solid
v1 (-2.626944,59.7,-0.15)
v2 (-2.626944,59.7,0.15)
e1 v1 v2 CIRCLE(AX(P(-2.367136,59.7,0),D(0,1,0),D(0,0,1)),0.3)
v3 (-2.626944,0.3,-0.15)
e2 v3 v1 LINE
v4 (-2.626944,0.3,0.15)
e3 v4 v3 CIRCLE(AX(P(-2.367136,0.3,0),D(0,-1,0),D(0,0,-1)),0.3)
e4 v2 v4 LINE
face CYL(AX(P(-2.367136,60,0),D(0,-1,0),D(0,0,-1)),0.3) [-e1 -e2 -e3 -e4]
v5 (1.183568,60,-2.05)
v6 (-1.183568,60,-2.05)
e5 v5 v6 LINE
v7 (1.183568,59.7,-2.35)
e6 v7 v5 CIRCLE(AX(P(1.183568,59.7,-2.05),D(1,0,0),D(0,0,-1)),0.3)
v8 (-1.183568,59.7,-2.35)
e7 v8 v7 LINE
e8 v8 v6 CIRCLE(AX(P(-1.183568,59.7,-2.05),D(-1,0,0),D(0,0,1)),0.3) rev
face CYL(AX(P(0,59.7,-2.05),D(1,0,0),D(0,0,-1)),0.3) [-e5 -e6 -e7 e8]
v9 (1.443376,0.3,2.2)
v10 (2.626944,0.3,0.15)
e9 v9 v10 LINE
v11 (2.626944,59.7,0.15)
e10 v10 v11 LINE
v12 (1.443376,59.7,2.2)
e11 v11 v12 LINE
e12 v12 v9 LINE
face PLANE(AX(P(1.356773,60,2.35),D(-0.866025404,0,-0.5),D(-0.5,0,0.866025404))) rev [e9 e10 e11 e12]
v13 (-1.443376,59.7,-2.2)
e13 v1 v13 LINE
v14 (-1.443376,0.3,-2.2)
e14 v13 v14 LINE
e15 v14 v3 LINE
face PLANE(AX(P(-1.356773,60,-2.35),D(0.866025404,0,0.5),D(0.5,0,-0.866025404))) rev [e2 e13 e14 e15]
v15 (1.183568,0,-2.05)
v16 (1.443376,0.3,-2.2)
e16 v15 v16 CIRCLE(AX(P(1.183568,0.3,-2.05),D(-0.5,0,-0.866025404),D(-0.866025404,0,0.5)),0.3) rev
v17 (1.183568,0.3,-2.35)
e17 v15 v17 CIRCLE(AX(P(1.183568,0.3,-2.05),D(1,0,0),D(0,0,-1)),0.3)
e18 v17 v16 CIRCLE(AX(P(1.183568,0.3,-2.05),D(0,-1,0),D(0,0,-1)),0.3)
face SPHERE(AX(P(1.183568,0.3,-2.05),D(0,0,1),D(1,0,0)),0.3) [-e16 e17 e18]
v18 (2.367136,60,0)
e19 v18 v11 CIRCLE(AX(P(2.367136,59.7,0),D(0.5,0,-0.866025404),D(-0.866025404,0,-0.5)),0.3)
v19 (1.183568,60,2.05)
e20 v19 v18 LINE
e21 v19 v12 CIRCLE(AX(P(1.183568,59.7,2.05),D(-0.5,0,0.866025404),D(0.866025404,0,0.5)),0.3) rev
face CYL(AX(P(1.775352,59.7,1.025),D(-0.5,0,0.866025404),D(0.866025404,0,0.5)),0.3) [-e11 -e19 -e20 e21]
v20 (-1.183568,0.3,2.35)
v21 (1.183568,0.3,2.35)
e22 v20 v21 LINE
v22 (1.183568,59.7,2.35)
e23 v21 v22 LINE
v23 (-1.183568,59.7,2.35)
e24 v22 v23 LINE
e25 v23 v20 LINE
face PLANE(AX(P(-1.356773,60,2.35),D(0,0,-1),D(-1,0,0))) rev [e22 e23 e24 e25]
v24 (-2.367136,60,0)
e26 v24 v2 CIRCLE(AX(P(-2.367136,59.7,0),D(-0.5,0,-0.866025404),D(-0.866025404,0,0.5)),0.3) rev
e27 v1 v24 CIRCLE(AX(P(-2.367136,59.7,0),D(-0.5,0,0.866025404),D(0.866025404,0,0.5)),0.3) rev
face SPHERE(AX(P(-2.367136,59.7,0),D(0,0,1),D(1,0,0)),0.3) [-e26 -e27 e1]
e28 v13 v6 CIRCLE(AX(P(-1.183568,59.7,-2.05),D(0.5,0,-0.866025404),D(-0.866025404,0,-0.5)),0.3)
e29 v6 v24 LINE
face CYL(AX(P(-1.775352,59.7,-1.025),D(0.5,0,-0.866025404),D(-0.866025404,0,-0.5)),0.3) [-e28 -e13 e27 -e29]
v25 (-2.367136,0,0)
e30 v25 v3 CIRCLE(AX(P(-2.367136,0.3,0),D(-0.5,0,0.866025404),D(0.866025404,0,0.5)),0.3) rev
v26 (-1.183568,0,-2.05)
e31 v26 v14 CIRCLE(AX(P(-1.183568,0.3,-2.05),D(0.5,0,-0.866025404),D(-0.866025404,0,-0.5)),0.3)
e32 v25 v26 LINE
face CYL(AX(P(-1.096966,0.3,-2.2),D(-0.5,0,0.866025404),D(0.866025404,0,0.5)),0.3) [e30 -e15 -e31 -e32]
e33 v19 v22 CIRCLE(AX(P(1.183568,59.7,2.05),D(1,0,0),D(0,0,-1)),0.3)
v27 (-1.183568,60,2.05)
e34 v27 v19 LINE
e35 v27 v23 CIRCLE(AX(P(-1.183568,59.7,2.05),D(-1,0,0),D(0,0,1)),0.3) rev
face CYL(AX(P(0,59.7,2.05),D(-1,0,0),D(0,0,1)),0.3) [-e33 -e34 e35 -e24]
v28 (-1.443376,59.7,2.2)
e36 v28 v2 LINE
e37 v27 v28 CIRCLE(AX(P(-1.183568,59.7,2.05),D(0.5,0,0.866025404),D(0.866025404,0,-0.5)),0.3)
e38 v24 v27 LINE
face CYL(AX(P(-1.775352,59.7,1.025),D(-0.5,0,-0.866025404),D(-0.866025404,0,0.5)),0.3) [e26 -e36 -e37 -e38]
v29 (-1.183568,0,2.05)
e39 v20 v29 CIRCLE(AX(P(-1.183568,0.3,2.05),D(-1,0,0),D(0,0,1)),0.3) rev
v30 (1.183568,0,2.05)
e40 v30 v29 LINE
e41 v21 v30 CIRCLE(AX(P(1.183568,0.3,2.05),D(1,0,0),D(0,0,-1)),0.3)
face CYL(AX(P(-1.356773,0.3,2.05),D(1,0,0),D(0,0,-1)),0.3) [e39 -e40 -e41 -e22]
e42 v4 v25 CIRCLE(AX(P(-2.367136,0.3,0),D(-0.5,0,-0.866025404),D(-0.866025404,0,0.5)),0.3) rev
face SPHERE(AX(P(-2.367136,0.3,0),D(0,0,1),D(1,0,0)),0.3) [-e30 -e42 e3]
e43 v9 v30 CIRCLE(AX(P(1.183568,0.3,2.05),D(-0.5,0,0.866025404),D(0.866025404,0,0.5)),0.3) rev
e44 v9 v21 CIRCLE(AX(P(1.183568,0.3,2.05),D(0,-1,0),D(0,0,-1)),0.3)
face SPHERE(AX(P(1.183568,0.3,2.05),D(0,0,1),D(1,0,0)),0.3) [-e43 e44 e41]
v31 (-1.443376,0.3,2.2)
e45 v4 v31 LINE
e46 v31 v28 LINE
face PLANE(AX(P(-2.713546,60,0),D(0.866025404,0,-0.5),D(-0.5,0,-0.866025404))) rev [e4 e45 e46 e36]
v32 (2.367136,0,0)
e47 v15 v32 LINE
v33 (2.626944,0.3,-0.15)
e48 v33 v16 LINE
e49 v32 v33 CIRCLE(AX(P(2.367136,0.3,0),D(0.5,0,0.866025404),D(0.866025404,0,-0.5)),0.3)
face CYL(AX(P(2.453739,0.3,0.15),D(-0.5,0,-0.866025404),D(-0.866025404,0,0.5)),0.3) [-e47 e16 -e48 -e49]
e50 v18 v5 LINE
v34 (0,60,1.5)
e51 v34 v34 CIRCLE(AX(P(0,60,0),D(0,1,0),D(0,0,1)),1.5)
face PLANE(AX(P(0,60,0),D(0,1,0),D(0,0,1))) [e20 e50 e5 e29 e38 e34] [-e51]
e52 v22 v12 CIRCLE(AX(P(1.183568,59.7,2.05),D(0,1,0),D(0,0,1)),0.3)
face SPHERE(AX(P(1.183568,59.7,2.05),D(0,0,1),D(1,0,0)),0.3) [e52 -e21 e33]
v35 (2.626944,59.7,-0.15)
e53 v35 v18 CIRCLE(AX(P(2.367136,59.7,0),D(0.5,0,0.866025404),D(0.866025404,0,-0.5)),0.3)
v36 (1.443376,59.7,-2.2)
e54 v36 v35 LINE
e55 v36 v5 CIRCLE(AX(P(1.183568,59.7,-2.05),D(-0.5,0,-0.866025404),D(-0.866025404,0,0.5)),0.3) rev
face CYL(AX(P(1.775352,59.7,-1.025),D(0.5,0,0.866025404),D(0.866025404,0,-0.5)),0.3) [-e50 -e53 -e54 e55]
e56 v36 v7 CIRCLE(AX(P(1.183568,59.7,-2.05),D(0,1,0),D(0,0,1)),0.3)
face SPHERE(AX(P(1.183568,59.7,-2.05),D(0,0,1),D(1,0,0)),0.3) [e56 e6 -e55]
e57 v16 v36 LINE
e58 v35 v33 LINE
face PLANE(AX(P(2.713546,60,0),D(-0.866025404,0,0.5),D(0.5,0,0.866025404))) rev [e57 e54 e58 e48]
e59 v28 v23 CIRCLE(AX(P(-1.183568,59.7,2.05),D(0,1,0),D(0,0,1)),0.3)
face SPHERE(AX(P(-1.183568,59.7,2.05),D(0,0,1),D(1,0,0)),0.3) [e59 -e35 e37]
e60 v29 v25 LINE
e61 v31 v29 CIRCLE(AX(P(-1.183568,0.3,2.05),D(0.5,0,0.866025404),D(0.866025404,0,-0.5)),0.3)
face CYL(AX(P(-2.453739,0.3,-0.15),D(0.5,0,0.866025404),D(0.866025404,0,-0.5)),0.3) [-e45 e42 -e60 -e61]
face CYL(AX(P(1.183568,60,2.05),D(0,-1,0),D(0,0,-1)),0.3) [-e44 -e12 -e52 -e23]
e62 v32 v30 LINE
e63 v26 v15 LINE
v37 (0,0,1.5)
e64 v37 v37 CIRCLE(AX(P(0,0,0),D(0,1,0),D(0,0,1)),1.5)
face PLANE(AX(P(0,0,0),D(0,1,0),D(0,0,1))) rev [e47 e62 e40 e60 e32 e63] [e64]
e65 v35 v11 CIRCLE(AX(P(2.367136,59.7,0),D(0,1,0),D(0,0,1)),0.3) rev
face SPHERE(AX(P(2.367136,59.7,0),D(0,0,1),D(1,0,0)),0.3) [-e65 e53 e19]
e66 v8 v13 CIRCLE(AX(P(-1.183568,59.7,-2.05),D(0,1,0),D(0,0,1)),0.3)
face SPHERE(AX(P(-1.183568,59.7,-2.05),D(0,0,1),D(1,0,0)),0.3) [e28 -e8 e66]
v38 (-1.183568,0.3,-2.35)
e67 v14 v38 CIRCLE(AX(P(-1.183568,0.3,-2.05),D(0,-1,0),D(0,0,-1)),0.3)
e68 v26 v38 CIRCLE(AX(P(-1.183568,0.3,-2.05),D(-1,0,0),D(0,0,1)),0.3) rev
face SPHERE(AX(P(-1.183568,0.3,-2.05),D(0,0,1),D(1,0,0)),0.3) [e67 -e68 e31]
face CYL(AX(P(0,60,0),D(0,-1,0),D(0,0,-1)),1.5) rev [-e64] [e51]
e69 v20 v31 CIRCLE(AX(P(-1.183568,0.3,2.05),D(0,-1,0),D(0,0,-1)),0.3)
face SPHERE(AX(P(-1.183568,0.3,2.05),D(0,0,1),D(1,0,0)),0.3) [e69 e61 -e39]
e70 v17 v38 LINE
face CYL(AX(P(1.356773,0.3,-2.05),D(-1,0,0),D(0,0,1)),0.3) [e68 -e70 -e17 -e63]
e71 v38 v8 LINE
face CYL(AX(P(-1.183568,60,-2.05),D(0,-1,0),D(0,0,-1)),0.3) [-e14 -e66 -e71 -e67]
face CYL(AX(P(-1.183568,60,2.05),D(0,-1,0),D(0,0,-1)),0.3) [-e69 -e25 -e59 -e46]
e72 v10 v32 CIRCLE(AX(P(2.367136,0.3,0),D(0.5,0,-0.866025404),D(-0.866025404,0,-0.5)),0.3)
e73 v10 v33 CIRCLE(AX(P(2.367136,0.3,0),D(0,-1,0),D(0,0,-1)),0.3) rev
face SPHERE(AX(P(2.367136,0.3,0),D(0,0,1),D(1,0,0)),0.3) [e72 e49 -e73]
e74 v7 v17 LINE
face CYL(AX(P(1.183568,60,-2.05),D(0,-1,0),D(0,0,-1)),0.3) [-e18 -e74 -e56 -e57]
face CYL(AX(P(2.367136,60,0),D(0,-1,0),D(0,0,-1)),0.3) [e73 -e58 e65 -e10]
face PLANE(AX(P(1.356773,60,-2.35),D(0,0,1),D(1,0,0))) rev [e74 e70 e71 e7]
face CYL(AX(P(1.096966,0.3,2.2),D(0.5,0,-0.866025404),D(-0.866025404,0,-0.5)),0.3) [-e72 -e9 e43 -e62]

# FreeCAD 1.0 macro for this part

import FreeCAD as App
import Part
import Sketcher
from FreeCAD import Vector
Q = App.Units.Quantity


def edges_at(feature, points):
    """Names of the edges that pass closest to the given points."""
    edges = feature.Shape.Edges
    near = lambda p: min(range(len(edges)), key=lambda i: edges[i].distToShape(Part.Vertex(*p))[0])
    return sorted({f"Edge{near(p) + 1}" for p in points})

doc = App.newDocument("Part")
params = doc.addObject("Spreadsheet::Sheet", "Params")
for row, (alias, value) in enumerate([
    ("sketch1_diameter", "3 mm"),
    ("pad1_length", "60 mm"),
    ("fillet_radius", "0.3 mm"),
], start=1):
    params.set(f"A{row}", alias)
    params.set(f"B{row}", "=" + value)
    params.setAlias(f"B{row}", alias)

body = doc.addObject("PartDesign::Body", "Body")

sketch1 = body.newObject("Sketcher::SketchObject", "Sketch")
sketch1.AttachmentSupport = (doc.getObject("XZ_Plane"), [""])
sketch1.MapMode = "FlatFace"
sketch1.addGeometry([
    Part.LineSegment(Vector(2.713546, 0, 0), Vector(1.356773, -2.35, 0)),
    Part.LineSegment(Vector(1.356773, -2.35, 0), Vector(-1.356773, -2.35, 0)),
    Part.LineSegment(Vector(-1.356773, -2.35, 0), Vector(-2.713546, 0, 0)),
    Part.LineSegment(Vector(-2.713546, 0, 0), Vector(-1.356773, 2.35, 0)),
    Part.LineSegment(Vector(-1.356773, 2.35, 0), Vector(1.356773, 2.35, 0)),
    Part.LineSegment(Vector(1.356773, 2.35, 0), Vector(2.713546, 0, 0)),
    Part.Circle(Vector(0, 0, 0), Vector(0, 0, 1), 1.5),
], False)
sketch1.addConstraint([
    Sketcher.Constraint("Coincident", 0, 2, 1, 1),
    Sketcher.Constraint("Coincident", 1, 2, 2, 1),
    Sketcher.Constraint("Coincident", 2, 2, 3, 1),
    Sketcher.Constraint("Coincident", 3, 2, 4, 1),
    Sketcher.Constraint("Coincident", 4, 2, 5, 1),
    Sketcher.Constraint("Coincident", 5, 2, 0, 1),
    Sketcher.Constraint("Horizontal", 1),
    Sketcher.Constraint("Horizontal", 4),
    Sketcher.Constraint("Coincident", 6, 3, -1, 1),
    Sketcher.Constraint("Symmetric", 0, 2, 3, 2, -1, 1),
    Sketcher.Constraint("Symmetric", 2, 2, 5, 2, -1, 1),
    Sketcher.Constraint("PointOnObject", 2, 2, -1),
    Sketcher.Constraint("Parallel", 2, 5),
    Sketcher.Constraint("Vertical", 1, 2, 3, 2),
    Sketcher.Constraint("Diameter", 6, 3.0),
    Sketcher.Constraint("Angle", 0, Q("-120 deg")),
    Sketcher.Constraint("DistanceY", 1, 2, 3, 2, 4.7),
    Sketcher.Constraint("DistanceX", 1, 2, 1, 1, 2.713546),
])
sketch1.setExpression("Constraints[14]", "Params.sketch1_diameter")
pad1 = body.newObject("PartDesign::Pad", "Pad")
pad1.Profile = sketch1
pad1.setExpression("Length", "Params.pad1_length")
pad1.Reversed = True
doc.recompute()

fillet = body.newObject("PartDesign::Fillet", "Fillet")
fillet.Base = (pad1, edges_at(pad1, [
    (0, 60, -2.35),
    (1.357, 30, 2.35),
    (-1.357, 30, 2.35),
    (-2.714, 30, 0),
    (-1.357, 30, -2.35),
    (1.357, 30, -2.35),
    (2.714, 30, 0),
    (-2.035, 60, -1.175),
    (-2.035, 60, 1.175),
    (0, 60, 2.35),
    (2.035, 60, 1.175),
    (0, 0, 2.35),
    (-2.035, 0, 1.175),
    (-2.035, 0, -1.175),
    (2.035, 60, -1.175),
    (0, 0, -2.35),
    (2.035, 0, -1.175),
    (2.035, 0, 1.175),
]))
fillet.setExpression("Radius", "Params.fillet_radius")

doc.recompute()
